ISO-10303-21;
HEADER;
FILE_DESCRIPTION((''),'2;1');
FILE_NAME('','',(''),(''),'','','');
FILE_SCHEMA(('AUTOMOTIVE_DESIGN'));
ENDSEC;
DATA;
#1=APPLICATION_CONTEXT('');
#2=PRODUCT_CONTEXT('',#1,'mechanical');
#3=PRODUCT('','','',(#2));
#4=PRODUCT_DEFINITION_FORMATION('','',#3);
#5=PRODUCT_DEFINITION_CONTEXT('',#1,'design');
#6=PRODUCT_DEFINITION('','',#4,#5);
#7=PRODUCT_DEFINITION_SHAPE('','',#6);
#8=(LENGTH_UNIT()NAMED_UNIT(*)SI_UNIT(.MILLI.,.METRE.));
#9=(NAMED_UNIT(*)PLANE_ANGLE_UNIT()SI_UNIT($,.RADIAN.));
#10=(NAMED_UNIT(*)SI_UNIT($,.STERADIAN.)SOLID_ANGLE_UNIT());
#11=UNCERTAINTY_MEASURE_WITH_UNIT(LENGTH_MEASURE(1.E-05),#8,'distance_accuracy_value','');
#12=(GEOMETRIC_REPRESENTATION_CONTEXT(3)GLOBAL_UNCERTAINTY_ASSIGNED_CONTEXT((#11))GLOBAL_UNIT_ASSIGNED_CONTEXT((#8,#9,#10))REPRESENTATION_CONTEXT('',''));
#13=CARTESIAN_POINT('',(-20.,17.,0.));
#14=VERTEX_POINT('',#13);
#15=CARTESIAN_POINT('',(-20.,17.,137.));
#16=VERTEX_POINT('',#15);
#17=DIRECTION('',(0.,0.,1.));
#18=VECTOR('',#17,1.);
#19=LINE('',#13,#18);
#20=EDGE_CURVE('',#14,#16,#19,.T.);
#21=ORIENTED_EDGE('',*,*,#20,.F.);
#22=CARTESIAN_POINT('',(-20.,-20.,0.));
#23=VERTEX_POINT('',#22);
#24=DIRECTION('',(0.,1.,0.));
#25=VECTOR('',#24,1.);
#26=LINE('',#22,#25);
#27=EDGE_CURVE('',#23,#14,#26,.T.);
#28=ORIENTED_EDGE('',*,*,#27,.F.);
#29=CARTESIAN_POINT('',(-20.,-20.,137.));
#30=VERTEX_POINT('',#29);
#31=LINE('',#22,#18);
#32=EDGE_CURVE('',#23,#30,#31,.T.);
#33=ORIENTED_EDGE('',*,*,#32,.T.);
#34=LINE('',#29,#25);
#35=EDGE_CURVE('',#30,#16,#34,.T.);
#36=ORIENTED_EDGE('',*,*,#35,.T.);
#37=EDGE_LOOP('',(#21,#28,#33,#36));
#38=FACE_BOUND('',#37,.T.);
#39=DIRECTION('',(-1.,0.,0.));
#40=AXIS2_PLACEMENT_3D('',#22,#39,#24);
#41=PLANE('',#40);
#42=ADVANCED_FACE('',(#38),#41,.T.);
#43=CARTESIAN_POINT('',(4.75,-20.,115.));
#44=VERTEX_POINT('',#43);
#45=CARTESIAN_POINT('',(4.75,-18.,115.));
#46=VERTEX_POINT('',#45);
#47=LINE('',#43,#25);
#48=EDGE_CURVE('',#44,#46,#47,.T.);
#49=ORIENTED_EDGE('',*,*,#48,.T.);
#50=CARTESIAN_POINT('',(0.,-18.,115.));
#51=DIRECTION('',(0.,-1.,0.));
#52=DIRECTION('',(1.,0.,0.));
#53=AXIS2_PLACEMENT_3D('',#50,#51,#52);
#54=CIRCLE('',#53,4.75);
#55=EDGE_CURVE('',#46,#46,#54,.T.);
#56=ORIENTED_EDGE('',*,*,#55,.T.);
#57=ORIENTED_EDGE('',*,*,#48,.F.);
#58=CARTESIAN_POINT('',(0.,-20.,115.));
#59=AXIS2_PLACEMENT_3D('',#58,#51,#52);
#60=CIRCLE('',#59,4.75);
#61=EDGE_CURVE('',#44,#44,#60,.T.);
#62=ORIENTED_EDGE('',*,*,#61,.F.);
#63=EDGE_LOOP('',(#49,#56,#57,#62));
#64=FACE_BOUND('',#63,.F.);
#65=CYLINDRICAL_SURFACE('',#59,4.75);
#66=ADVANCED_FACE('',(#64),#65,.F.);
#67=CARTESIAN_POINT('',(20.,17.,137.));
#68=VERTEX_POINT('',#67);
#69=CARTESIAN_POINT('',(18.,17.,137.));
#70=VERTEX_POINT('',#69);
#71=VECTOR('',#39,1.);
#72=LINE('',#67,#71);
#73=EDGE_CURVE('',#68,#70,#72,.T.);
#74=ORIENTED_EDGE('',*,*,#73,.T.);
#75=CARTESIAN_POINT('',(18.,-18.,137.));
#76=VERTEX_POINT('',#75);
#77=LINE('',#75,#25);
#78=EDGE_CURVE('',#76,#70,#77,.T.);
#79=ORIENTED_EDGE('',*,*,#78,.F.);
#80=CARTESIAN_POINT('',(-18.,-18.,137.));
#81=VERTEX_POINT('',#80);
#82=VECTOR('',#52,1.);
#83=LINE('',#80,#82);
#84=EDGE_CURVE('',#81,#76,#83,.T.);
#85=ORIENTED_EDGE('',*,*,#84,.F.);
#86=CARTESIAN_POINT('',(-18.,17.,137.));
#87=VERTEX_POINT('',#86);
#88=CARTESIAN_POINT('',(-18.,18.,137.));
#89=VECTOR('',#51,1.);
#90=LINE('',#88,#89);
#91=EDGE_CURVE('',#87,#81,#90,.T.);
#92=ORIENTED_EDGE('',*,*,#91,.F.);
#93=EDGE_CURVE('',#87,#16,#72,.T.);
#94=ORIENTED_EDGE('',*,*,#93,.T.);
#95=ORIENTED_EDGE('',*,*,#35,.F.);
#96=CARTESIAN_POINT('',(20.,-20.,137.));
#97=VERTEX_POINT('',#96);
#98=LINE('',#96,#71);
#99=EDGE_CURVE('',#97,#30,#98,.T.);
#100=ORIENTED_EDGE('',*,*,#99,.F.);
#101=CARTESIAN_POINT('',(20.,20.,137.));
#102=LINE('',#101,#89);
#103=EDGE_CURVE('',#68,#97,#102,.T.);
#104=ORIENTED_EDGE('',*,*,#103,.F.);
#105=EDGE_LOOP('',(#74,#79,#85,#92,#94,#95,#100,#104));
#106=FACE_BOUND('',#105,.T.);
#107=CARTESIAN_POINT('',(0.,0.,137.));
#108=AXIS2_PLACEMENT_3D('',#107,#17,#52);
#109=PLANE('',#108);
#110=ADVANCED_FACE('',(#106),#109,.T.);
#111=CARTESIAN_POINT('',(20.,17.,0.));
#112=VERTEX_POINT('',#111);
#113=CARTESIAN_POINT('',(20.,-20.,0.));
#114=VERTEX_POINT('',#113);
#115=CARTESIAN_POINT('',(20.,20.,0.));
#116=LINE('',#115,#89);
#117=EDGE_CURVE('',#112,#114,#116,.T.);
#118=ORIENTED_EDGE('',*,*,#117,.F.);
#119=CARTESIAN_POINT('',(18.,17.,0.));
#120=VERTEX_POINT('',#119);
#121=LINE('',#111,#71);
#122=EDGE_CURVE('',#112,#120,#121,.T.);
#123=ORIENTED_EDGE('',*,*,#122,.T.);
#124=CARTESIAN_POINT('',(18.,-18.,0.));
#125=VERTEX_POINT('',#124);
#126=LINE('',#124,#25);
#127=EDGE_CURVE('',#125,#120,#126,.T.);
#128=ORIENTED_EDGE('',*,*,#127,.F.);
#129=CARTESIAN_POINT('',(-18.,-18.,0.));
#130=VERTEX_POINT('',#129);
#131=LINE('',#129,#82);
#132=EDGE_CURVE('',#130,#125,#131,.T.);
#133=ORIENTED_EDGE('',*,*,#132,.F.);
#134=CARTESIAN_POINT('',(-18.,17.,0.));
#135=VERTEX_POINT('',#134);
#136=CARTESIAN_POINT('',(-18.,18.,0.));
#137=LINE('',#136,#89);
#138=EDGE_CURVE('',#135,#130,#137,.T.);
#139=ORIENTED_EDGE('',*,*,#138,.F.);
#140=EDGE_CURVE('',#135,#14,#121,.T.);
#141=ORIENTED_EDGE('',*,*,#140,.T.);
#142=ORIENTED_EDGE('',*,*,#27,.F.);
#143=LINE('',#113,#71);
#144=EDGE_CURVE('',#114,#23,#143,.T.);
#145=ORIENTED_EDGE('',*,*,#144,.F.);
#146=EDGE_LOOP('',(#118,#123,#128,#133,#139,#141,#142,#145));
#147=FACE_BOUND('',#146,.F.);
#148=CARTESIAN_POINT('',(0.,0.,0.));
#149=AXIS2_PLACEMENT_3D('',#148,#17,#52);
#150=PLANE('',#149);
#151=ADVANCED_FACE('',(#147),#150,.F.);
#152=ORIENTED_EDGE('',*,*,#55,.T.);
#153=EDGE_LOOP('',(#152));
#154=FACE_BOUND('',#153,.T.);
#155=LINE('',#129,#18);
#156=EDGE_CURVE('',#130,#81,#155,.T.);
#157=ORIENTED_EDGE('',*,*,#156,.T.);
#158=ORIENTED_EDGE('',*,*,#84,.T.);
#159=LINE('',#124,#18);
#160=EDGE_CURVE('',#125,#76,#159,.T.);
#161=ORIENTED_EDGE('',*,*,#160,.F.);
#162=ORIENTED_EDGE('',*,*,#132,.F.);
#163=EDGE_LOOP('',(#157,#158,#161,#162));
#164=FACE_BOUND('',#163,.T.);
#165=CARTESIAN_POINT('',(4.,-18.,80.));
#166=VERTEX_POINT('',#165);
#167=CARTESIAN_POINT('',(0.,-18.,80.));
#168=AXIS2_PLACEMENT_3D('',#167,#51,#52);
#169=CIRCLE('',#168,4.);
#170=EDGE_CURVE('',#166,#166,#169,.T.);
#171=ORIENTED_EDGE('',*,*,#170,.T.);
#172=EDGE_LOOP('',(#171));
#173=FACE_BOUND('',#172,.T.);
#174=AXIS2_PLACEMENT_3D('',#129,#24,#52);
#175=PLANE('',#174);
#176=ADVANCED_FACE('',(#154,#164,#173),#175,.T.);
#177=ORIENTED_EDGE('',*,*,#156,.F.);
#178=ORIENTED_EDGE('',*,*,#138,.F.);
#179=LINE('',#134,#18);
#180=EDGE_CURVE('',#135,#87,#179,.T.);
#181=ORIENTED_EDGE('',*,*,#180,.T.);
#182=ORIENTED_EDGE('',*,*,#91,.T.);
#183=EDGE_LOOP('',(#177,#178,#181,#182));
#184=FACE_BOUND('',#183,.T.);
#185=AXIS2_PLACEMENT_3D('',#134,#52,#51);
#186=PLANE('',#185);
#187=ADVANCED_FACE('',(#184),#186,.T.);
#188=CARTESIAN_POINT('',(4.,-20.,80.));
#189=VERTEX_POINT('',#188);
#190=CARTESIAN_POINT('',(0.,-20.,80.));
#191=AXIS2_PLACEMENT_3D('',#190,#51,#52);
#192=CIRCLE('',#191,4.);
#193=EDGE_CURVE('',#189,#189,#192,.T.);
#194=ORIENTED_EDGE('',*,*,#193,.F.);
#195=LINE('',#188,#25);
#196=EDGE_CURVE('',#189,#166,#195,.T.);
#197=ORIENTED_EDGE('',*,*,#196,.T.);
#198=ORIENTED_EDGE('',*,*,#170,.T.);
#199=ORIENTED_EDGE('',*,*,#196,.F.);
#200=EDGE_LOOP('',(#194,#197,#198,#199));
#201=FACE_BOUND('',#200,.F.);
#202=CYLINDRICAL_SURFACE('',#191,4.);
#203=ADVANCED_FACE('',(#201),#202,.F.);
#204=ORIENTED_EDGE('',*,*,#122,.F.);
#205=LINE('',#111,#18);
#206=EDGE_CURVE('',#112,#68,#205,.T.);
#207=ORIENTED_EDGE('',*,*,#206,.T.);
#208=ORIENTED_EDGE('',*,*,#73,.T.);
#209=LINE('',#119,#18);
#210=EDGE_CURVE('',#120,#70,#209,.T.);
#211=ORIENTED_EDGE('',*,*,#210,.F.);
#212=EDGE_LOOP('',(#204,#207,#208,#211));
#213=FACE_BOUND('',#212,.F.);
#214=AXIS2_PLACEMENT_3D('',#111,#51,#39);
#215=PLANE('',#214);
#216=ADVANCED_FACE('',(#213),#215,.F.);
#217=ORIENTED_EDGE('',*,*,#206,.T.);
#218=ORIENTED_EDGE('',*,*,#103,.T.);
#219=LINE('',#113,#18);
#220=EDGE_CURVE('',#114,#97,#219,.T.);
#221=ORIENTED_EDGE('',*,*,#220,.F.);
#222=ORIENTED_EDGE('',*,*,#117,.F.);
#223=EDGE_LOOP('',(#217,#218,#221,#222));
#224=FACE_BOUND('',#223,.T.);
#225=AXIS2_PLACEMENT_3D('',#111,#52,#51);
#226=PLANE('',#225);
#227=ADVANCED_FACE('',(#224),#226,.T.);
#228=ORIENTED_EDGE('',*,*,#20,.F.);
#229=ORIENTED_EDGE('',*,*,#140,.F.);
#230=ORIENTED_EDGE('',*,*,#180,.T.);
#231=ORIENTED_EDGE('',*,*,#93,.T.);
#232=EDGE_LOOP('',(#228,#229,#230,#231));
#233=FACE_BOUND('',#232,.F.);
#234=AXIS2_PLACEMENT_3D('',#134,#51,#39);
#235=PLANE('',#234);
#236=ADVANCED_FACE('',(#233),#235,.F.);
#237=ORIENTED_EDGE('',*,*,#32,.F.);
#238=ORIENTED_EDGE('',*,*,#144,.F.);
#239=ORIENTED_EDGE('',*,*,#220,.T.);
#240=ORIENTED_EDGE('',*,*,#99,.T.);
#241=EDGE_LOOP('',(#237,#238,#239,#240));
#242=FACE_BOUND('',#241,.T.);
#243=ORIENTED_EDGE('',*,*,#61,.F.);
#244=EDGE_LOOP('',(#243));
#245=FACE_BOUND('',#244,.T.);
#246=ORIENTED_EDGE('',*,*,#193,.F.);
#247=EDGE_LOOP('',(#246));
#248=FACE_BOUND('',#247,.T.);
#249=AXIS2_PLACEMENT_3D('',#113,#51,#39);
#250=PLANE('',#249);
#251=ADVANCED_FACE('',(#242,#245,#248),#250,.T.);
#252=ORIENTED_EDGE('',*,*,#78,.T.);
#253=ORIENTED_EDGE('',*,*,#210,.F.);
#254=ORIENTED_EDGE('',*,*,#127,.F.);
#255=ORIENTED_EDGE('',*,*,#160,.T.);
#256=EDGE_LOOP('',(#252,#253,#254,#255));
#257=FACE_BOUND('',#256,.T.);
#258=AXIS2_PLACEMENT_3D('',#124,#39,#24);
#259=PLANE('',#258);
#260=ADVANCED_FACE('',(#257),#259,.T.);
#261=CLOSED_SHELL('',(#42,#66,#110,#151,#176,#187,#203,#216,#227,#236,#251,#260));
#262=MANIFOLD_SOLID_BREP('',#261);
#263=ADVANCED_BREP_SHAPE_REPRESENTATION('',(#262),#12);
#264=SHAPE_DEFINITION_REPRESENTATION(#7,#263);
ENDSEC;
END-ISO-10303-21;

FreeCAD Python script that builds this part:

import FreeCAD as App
import Part
import Sketcher

V = App.Vector
Q = App.Units.Quantity


def add_polygon(sketch, points):
    """Adds a closed chain of lines whose ends are joined by coincident constraints."""
    first, n = sketch.GeometryCount, len(points)
    for a, b in zip(points, points[1:] + points[:1]):
        sketch.addGeometry(Part.LineSegment(App.Vector(*a, 0), App.Vector(*b, 0)), False)
    for i in range(n):
        sketch.addConstraint(Sketcher.Constraint("Coincident", first + i, 2, first + (i + 1) % n, 1))

doc = App.newDocument("Part")
body = doc.addObject("PartDesign::Body", "Body")

sketch1 = body.newObject("Sketcher::SketchObject", "Sketch")
sketch1.AttachmentSupport = (doc.getObject("XY_Plane"), [""])
sketch1.MapMode = "FlatFace"
add_polygon(sketch1, [(-18, 17), (-20, 17), (-20, -20), (20, -20), (20, 17), (18, 17), (18, -18), (-18, -18)])
sketch1.addConstraint([
    Sketcher.Constraint("Horizontal", 0),
    Sketcher.Constraint("Vertical", 1),
    Sketcher.Constraint("Horizontal", 2),
    Sketcher.Constraint("Vertical", 3),
    Sketcher.Constraint("Horizontal", 4),
    Sketcher.Constraint("Vertical", 5),
    Sketcher.Constraint("Horizontal", 6),
    Sketcher.Constraint("Vertical", 7),
    Sketcher.Constraint("Symmetric", 0, 2, 3, 2, -2),
    Sketcher.Constraint("Equal", 0, 4),
    Sketcher.Constraint("DistanceX", 2, 1, 2, 2, Q("40 mm")),
    Sketcher.Constraint("DistanceX", 6, 2, 6, 1, Q("36 mm")),
    Sketcher.Constraint("DistanceY", 5, 2, 5, 1, Q("35 mm")),
    Sketcher.Constraint("DistanceY", 1, 2, 1, 1, Q("37 mm")),
    Sketcher.Constraint("DistanceY", -1, 1, 0, 2, Q("17 mm")),
])
pad1 = body.newObject("PartDesign::Pad", "Pad")
pad1.Profile = sketch1
pad1.Length = 137

sketch2 = body.newObject("Sketcher::SketchObject", "Sketch001")
sketch2.AttachmentSupport = (doc.getObject("XZ_Plane"), [""])
sketch2.MapMode = "FlatFace"
sketch2.AttachmentOffset = App.Placement(V(0, 0, 20), App.Rotation())
sketch2.addGeometry([
    Part.Circle(V(0, 80, 0), V(0, 0, 1), 4),
    Part.Circle(V(0, 115, 0), V(0, 0, 1), 4.8),
], False)
sketch2.addConstraint([
    Sketcher.Constraint("PointOnObject", 0, 3, -2),
    Sketcher.Constraint("PointOnObject", 1, 3, -2),
    Sketcher.Constraint("Diameter", 0, Q("8 mm")),
    Sketcher.Constraint("Diameter", 1, Q("9.5 mm")),
    Sketcher.Constraint("DistanceY", -1, 1, 0, 3, Q("80 mm")),
    Sketcher.Constraint("DistanceY", 0, 3, 1, 3, Q("35 mm")),
])
pocket1 = body.newObject("PartDesign::Pocket", "Pocket")
pocket1.Profile = sketch2
pocket1.Type = "ThroughAll"

doc.recompute()
